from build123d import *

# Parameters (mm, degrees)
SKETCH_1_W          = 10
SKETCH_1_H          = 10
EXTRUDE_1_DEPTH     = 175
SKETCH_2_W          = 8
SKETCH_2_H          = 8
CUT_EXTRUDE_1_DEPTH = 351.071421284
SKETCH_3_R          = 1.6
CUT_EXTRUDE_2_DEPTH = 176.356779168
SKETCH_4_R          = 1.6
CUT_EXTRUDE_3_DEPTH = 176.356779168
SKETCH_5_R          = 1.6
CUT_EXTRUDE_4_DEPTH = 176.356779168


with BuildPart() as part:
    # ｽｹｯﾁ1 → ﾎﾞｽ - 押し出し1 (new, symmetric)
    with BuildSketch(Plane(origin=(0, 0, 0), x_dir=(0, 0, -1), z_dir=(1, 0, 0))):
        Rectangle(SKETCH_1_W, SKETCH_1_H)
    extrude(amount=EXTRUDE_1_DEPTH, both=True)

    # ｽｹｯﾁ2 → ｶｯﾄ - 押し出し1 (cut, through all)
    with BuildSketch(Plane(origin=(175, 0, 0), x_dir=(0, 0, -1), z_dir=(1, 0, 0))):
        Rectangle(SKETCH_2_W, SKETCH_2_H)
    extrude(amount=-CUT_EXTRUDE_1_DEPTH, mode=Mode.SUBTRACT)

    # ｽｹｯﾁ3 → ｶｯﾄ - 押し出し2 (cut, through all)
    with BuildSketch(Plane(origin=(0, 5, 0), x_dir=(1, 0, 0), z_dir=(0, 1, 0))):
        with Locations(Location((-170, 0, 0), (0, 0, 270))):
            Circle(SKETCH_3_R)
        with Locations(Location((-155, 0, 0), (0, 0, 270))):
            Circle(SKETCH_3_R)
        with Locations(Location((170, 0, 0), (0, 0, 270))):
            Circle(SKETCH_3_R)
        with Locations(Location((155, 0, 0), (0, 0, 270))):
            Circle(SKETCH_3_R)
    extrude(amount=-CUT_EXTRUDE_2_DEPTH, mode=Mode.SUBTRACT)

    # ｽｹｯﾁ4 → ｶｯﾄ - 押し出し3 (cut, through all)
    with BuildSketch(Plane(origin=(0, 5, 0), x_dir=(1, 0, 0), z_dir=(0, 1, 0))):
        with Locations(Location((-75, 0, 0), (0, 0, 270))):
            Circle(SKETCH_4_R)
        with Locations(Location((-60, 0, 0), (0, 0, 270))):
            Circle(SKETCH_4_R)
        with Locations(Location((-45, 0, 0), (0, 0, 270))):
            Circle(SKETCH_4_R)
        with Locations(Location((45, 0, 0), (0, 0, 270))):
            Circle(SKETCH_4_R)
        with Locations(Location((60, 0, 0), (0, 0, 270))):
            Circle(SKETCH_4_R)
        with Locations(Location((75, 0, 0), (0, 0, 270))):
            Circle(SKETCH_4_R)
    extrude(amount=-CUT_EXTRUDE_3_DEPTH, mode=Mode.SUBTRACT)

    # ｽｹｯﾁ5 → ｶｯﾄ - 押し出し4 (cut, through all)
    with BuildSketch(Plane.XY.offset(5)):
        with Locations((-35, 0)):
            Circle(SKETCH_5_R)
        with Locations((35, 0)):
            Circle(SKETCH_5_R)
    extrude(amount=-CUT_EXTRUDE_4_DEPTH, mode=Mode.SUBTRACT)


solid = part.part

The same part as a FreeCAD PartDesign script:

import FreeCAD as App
import Part
import Sketcher

V = App.Vector
Q = App.Units.Quantity

doc = App.newDocument("Part")
body = doc.addObject("PartDesign::Body", "Body")

sketch1 = body.newObject("Sketcher::SketchObject", "Sketch")
sketch1.AttachmentSupport = (doc.getObject("YZ_Plane"), [""])
sketch1.MapMode = "FlatFace"
sketch1.addGeometry(Part.LineSegment(V(5, 5, 0), V(-5, 5, 0)), False)
sketch1.addGeometry(Part.LineSegment(V(-5, 5, 0), V(-5, -5, 0)), False)
sketch1.addGeometry(Part.LineSegment(V(-5, -5, 0), V(5, -5, 0)), False)
sketch1.addGeometry(Part.LineSegment(V(5, -5, 0), V(5, 5, 0)), False)
sketch1.addConstraint(Sketcher.Constraint("Coincident", 0, 2, 1, 1))
sketch1.addConstraint(Sketcher.Constraint("Coincident", 1, 2, 2, 1))
sketch1.addConstraint(Sketcher.Constraint("Coincident", 2, 2, 3, 1))
sketch1.addConstraint(Sketcher.Constraint("Coincident", 3, 2, 0, 1))
sketch1.addConstraint(Sketcher.Constraint("Horizontal", 0))
sketch1.addConstraint(Sketcher.Constraint("Vertical", 1))
sketch1.addConstraint(Sketcher.Constraint("Horizontal", 2))
sketch1.addConstraint(Sketcher.Constraint("Vertical", 3))
sketch1.addConstraint(Sketcher.Constraint("Symmetric", 0, 2, 2, 2, -1, 1))
sketch1.addConstraint(Sketcher.Constraint("Equal", 2, 1))
sketch1.addConstraint(Sketcher.Constraint("DistanceX", 0, 2, 0, 1, Q("10 mm")))
pad1 = body.newObject("PartDesign::Pad", "Pad")
pad1.Profile = sketch1
pad1.Length = 350
pad1.Midplane = True

sketch2 = body.newObject("Sketcher::SketchObject", "Sketch001")
sketch2.AttachmentSupport = (doc.getObject("YZ_Plane"), [""])
sketch2.MapMode = "FlatFace"
sketch2.AttachmentOffset = App.Placement(V(0, 0, 175), App.Rotation())
sketch2.addGeometry(Part.LineSegment(V(4, 4, 0), V(-4, 4, 0)), False)
sketch2.addGeometry(Part.LineSegment(V(-4, 4, 0), V(-4, -4, 0)), False)
sketch2.addGeometry(Part.LineSegment(V(-4, -4, 0), V(4, -4, 0)), False)
sketch2.addGeometry(Part.LineSegment(V(4, -4, 0), V(4, 4, 0)), False)
sketch2.addConstraint(Sketcher.Constraint("Coincident", 0, 2, 1, 1))
sketch2.addConstraint(Sketcher.Constraint("Coincident", 1, 2, 2, 1))
sketch2.addConstraint(Sketcher.Constraint("Coincident", 2, 2, 3, 1))
sketch2.addConstraint(Sketcher.Constraint("Coincident", 3, 2, 0, 1))
sketch2.addConstraint(Sketcher.Constraint("Horizontal", 0))
sketch2.addConstraint(Sketcher.Constraint("Vertical", 1))
sketch2.addConstraint(Sketcher.Constraint("Horizontal", 2))
sketch2.addConstraint(Sketcher.Constraint("Vertical", 3))
sketch2.addConstraint(Sketcher.Constraint("Symmetric", 0, 2, 2, 2, -1, 1))
sketch2.addConstraint(Sketcher.Constraint("Equal", 2, 1))
sketch2.addConstraint(Sketcher.Constraint("DistanceX", 0, 2, 0, 1, Q("8 mm")))
pocket1 = body.newObject("PartDesign::Pocket", "Pocket")
pocket1.Profile = sketch2
pocket1.Type = "ThroughAll"

sketch3 = body.newObject("Sketcher::SketchObject", "Sketch002")
sketch3.AttachmentSupport = (doc.getObject("XZ_Plane"), [""])
sketch3.MapMode = "FlatFace"
sketch3.AttachmentOffset = App.Placement(V(0, 0, -5), App.Rotation())
sketch3.addGeometry(Part.Circle(V(-170, 0, 0), V(0, 0, 1), 1.6), False)
sketch3.addGeometry(Part.Circle(V(-155, 0, 0), V(0, 0, 1), 1.6), False)
sketch3.addGeometry(Part.Circle(V(170, 0, 0), V(0, 0, 1), 1.6), False)
sketch3.addGeometry(Part.Circle(V(155, 0, 0), V(0, 0, 1), 1.6), False)
sketch3.addConstraint(Sketcher.Constraint("Equal", 0, 1))
sketch3.addConstraint(Sketcher.Constraint("Equal", 1, 2))
sketch3.addConstraint(Sketcher.Constraint("Equal", 2, 3))
sketch3.addConstraint(Sketcher.Constraint("Symmetric", 0, 3, 2, 3, -1, 1))
sketch3.addConstraint(Sketcher.Constraint("Symmetric", 1, 3, 3, 3, -1, 1))
sketch3.addConstraint(Sketcher.Constraint("PointOnObject", 0, 3, -1))
sketch3.addConstraint(Sketcher.Constraint("PointOnObject", 1, 3, -1))
sketch3.addConstraint(Sketcher.Constraint("Diameter", 0, Q("3.2 mm")))
sketch3.addConstraint(Sketcher.Constraint("DistanceX", 0, 3, -1, 1, Q("170 mm")))
sketch3.addConstraint(Sketcher.Constraint("DistanceX", 1, 3, -1, 1, Q("155 mm")))
pocket2 = body.newObject("PartDesign::Pocket", "Pocket001")
pocket2.Profile = sketch3
pocket2.Type = "ThroughAll"
pocket2.Reversed = True

sketch4 = body.newObject("Sketcher::SketchObject", "Sketch003")
sketch4.AttachmentSupport = (doc.getObject("XZ_Plane"), [""])
sketch4.MapMode = "FlatFace"
sketch4.AttachmentOffset = App.Placement(V(0, 0, -5), App.Rotation())
sketch4.addGeometry(Part.Circle(V(-75, 0, 0), V(0, 0, 1), 1.6), False)
sketch4.addGeometry(Part.Circle(V(-60, 0, 0), V(0, 0, 1), 1.6), False)
sketch4.addGeometry(Part.Circle(V(-45, 0, 0), V(0, 0, 1), 1.6), False)
sketch4.addGeometry(Part.Circle(V(45, 0, 0), V(0, 0, 1), 1.6), False)
sketch4.addGeometry(Part.Circle(V(60, 0, 0), V(0, 0, 1), 1.6), False)
sketch4.addGeometry(Part.Circle(V(75, 0, 0), V(0, 0, 1), 1.6), False)
sketch4.addConstraint(Sketcher.Constraint("Equal", 0, 1))
sketch4.addConstraint(Sketcher.Constraint("Equal", 1, 2))
sketch4.addConstraint(Sketcher.Constraint("Equal", 2, 3))
sketch4.addConstraint(Sketcher.Constraint("Equal", 3, 4))
sketch4.addConstraint(Sketcher.Constraint("Equal", 4, 5))
sketch4.addConstraint(Sketcher.Constraint("Symmetric", 2, 3, 3, 3, -1, 1))
sketch4.addConstraint(Sketcher.Constraint("Symmetric", 1, 3, 4, 3, -1, 1))
sketch4.addConstraint(Sketcher.Constraint("Symmetric", 0, 3, 5, 3, -1, 1))
sketch4.addConstraint(Sketcher.Constraint("PointOnObject", 0, 3, -1))
sketch4.addConstraint(Sketcher.Constraint("PointOnObject", 1, 3, -1))
sketch4.addConstraint(Sketcher.Constraint("PointOnObject", 2, 3, -1))
sketch4.addConstraint(Sketcher.Constraint("Diameter", 0, Q("3.2 mm")))
sketch4.addConstraint(Sketcher.Constraint("DistanceX", 0, 3, -1, 1, Q("75 mm")))
sketch4.addConstraint(Sketcher.Constraint("DistanceX", 1, 3, -1, 1, Q("60 mm")))
sketch4.addConstraint(Sketcher.Constraint("DistanceX", 2, 3, -1, 1, Q("45 mm")))
pocket3 = body.newObject("PartDesign::Pocket", "Pocket002")
pocket3.Profile = sketch4
pocket3.Type = "ThroughAll"
pocket3.Reversed = True

sketch5 = body.newObject("Sketcher::SketchObject", "Sketch004")
sketch5.AttachmentSupport = (doc.getObject("XY_Plane"), [""])
sketch5.MapMode = "FlatFace"
sketch5.AttachmentOffset = App.Placement(V(0, 0, 5), App.Rotation())
sketch5.addGeometry(Part.Circle(V(-35, 0, 0), V(0, 0, 1), 1.6), False)
sketch5.addGeometry(Part.Circle(V(35, 0, 0), V(0, 0, 1), 1.6), False)
sketch5.addConstraint(Sketcher.Constraint("Equal", 0, 1))
sketch5.addConstraint(Sketcher.Constraint("Symmetric", 0, 3, 1, 3, -1, 1))
sketch5.addConstraint(Sketcher.Constraint("PointOnObject", 0, 3, -1))
sketch5.addConstraint(Sketcher.Constraint("Diameter", 0, Q("3.2 mm")))
sketch5.addConstraint(Sketcher.Constraint("DistanceX", 0, 3, -1, 1, Q("35 mm")))
pocket4 = body.newObject("PartDesign::Pocket", "Pocket003")
pocket4.Profile = sketch5
pocket4.Type = "ThroughAll"

doc.recompute()
